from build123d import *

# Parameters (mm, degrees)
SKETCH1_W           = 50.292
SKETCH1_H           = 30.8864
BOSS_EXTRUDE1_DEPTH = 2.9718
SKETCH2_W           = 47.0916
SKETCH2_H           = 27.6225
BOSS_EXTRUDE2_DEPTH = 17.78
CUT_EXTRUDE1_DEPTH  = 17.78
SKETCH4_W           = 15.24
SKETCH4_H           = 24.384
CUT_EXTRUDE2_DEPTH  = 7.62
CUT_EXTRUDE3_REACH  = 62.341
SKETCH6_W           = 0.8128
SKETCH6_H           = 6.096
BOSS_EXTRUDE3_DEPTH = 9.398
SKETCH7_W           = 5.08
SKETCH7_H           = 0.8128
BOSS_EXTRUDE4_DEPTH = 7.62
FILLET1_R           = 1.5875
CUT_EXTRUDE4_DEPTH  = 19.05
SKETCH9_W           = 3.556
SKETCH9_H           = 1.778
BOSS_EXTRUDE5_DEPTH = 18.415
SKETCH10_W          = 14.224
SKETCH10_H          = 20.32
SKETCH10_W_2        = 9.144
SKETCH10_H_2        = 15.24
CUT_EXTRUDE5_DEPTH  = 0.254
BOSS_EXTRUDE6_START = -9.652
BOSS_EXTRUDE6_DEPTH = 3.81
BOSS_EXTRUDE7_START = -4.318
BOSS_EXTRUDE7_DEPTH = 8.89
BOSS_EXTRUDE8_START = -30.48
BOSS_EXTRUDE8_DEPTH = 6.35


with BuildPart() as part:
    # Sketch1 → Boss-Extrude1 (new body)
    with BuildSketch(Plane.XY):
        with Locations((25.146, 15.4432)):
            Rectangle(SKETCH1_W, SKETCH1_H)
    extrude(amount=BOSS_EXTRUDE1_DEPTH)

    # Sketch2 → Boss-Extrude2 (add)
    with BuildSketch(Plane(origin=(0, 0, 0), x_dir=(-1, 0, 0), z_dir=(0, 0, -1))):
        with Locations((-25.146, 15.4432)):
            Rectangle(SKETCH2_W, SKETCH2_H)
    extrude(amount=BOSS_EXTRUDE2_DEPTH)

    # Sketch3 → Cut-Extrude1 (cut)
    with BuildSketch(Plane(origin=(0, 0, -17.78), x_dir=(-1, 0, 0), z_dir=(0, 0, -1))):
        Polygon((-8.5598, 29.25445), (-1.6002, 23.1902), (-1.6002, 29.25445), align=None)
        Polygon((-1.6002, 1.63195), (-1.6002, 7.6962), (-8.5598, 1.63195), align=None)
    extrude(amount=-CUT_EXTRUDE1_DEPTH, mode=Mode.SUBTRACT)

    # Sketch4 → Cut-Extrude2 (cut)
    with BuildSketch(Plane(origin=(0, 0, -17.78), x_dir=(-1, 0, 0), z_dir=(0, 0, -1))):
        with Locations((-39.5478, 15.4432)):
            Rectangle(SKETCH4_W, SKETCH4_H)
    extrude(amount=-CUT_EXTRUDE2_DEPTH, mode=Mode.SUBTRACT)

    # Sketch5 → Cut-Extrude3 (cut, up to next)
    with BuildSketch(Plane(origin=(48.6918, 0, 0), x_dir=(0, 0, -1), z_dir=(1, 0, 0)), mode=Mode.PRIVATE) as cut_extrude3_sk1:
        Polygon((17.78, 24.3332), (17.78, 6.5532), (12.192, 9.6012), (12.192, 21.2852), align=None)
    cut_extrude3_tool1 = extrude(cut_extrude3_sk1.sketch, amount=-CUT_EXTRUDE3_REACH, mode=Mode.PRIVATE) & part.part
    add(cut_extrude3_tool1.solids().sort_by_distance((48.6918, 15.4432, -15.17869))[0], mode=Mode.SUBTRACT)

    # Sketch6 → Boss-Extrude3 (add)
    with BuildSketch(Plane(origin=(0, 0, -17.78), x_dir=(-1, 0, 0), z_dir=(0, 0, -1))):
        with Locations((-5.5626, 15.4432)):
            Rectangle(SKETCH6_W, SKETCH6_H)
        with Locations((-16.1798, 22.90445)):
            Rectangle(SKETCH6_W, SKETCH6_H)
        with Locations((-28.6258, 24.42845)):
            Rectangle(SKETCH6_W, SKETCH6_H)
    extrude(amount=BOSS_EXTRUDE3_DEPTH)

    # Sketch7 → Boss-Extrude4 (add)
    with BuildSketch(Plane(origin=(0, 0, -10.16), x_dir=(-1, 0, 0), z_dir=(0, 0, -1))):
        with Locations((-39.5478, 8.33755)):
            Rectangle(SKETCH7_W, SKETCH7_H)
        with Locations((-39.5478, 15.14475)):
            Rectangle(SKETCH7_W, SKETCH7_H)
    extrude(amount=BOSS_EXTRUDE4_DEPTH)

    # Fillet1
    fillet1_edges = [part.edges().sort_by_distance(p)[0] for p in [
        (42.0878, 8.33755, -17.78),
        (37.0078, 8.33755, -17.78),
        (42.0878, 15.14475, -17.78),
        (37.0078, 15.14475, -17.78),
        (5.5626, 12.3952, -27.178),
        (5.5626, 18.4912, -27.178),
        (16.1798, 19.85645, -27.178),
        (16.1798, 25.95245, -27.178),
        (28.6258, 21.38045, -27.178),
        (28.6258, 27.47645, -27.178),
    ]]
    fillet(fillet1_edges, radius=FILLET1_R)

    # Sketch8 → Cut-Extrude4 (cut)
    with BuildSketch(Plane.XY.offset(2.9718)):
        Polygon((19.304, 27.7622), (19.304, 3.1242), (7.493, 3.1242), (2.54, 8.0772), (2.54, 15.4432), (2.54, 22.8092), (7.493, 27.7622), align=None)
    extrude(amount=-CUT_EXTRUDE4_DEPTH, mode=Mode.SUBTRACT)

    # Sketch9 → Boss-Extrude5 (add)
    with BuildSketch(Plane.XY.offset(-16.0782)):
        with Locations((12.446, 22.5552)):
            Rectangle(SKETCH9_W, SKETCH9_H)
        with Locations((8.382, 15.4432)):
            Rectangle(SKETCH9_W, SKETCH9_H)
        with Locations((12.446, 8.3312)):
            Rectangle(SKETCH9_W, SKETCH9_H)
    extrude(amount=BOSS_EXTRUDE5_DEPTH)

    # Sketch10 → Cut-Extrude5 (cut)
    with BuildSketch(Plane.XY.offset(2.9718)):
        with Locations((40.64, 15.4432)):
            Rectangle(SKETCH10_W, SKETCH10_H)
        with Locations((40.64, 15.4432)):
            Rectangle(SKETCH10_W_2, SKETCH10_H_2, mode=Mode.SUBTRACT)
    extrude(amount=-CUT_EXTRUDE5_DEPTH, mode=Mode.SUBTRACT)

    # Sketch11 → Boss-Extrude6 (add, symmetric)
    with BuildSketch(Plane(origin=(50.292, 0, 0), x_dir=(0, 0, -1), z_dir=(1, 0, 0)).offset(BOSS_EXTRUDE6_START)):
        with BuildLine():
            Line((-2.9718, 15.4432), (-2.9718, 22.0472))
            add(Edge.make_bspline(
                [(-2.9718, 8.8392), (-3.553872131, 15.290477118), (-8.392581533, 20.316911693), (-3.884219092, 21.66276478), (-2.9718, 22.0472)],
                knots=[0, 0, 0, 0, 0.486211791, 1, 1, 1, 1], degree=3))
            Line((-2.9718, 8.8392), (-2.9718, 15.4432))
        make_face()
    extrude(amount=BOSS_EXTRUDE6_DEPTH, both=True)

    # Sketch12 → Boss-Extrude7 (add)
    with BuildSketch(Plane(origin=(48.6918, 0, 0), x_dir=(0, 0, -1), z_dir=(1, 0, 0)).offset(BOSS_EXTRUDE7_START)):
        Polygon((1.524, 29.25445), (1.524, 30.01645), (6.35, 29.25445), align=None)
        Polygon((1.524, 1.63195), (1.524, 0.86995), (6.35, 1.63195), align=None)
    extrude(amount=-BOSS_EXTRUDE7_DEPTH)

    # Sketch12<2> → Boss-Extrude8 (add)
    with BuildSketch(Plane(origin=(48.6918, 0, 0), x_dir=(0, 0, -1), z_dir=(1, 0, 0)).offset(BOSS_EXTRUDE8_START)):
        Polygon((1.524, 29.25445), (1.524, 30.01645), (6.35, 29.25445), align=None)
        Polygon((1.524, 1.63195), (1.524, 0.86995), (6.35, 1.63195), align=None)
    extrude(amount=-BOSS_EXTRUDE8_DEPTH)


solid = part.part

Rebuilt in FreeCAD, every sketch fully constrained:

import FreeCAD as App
import Part
import Sketcher

V = App.Vector
Q = App.Units.Quantity


def edges_at(feature, points):
    """Names of the edges that pass closest to the given points."""
    edges = feature.Shape.Edges
    near = lambda p: min(range(len(edges)), key=lambda i: edges[i].distToShape(Part.Vertex(*p))[0])
    return sorted({f"Edge{near(p) + 1}" for p in points})

doc = App.newDocument("Part")
body = doc.addObject("PartDesign::Body", "Body")

sketch1 = body.newObject("Sketcher::SketchObject", "Sketch")
sketch1.AttachmentSupport = (doc.getObject("XY_Plane"), [""])
sketch1.MapMode = "FlatFace"
sketch1.addGeometry(Part.LineSegment(V(0, 31, 0), V(0, 0, 0)), False)
sketch1.addGeometry(Part.LineSegment(V(0, 0, 0), V(50, 0, 0)), False)
sketch1.addGeometry(Part.LineSegment(V(50, 0, 0), V(50, 31, 0)), False)
sketch1.addGeometry(Part.LineSegment(V(50, 31, 0), V(0, 31, 0)), False)
sketch1.addConstraint(Sketcher.Constraint("Coincident", 0, 2, 1, 1))
sketch1.addConstraint(Sketcher.Constraint("Coincident", 1, 2, 2, 1))
sketch1.addConstraint(Sketcher.Constraint("Coincident", 2, 2, 3, 1))
sketch1.addConstraint(Sketcher.Constraint("Coincident", 3, 2, 0, 1))
sketch1.addConstraint(Sketcher.Constraint("Vertical", 0))
sketch1.addConstraint(Sketcher.Constraint("Horizontal", 1))
sketch1.addConstraint(Sketcher.Constraint("Vertical", 2))
sketch1.addConstraint(Sketcher.Constraint("Horizontal", 3))
sketch1.addConstraint(Sketcher.Constraint("Coincident", 0, 2, -1, 1))
sketch1.addConstraint(Sketcher.Constraint("DistanceX", 1, 1, 1, 2, Q("1.98 in")))
sketch1.addConstraint(Sketcher.Constraint("DistanceY", 0, 2, 0, 1, Q("1.216 in")))
pad1 = body.newObject("PartDesign::Pad", "Pad")
pad1.Profile = sketch1
pad1.Length = Q("0.117 in")

sketch2 = body.newObject("Sketcher::SketchObject", "Sketch001")
sketch2.AttachmentSupport = (doc.getObject("XY_Plane"), [""])
sketch2.MapMode = "FlatFace"
sketch2.addGeometry(Part.LineSegment(V(49, 29, 0), V(49, 2, 0)), False)
sketch2.addGeometry(Part.LineSegment(V(49, 2, 0), V(2, 2, 0)), False)
sketch2.addGeometry(Part.LineSegment(V(2, 2, 0), V(2, 29, 0)), False)
sketch2.addGeometry(Part.LineSegment(V(2, 29, 0), V(49, 29, 0)), False)
sketch2.addConstraint(Sketcher.Constraint("Coincident", 0, 2, 1, 1))
sketch2.addConstraint(Sketcher.Constraint("Coincident", 1, 2, 2, 1))
sketch2.addConstraint(Sketcher.Constraint("Coincident", 2, 2, 3, 1))
sketch2.addConstraint(Sketcher.Constraint("Coincident", 3, 2, 0, 1))
sketch2.addConstraint(Sketcher.Constraint("Vertical", 0))
sketch2.addConstraint(Sketcher.Constraint("Horizontal", 1))
sketch2.addConstraint(Sketcher.Constraint("Vertical", 2))
sketch2.addConstraint(Sketcher.Constraint("Horizontal", 3))
sketch2.addConstraint(Sketcher.Constraint("DistanceX", 1, 2, 1, 1, Q("1.854 in")))
sketch2.addConstraint(Sketcher.Constraint("DistanceY", 0, 2, 0, 1, Q("1.0875 in")))
sketch2.addConstraint(Sketcher.Constraint("DistanceX", -1, 1, 0, 2, Q("1.917 in")))
sketch2.addConstraint(Sketcher.Constraint("DistanceY", -1, 1, 0, 2, Q("1.63195 mm")))
pad2 = body.newObject("PartDesign::Pad", "Pad001")
pad2.Profile = sketch2
pad2.Length = Q("0.7 in")
pad2.Reversed = True

sketch3 = body.newObject("Sketcher::SketchObject", "Sketch002")
sketch3.AttachmentSupport = (doc.getObject("XY_Plane"), [""])
sketch3.MapMode = "FlatFace"
sketch3.AttachmentOffset = App.Placement(V(0, 0, -0.7 * 25.4), App.Rotation())
sketch3.addGeometry(Part.LineSegment(V(9, 29, 0), V(2, 23, 0)), False)
sketch3.addGeometry(Part.LineSegment(V(2, 23, 0), V(2, 29, 0)), False)
sketch3.addGeometry(Part.LineSegment(V(2, 29, 0), V(9, 29, 0)), False)
sketch3.addGeometry(Part.LineSegment(V(2, 2, 0), V(2, 8, 0)), False)
sketch3.addGeometry(Part.LineSegment(V(2, 8, 0), V(9, 2, 0)), False)
sketch3.addGeometry(Part.LineSegment(V(9, 2, 0), V(2, 2, 0)), False)
sketch3.addConstraint(Sketcher.Constraint("Coincident", 0, 2, 1, 1))
sketch3.addConstraint(Sketcher.Constraint("Coincident", 1, 2, 2, 1))
sketch3.addConstraint(Sketcher.Constraint("Coincident", 2, 2, 0, 1))
sketch3.addConstraint(Sketcher.Constraint("Coincident", 3, 2, 4, 1))
sketch3.addConstraint(Sketcher.Constraint("Coincident", 4, 2, 5, 1))
sketch3.addConstraint(Sketcher.Constraint("Coincident", 5, 2, 3, 1))
sketch3.addConstraint(Sketcher.Constraint("Vertical", 1))
sketch3.addConstraint(Sketcher.Constraint("Horizontal", 2))
sketch3.addConstraint(Sketcher.Constraint("Vertical", 3))
sketch3.addConstraint(Sketcher.Constraint("Horizontal", 5))
sketch3.addConstraint(Sketcher.Constraint("Vertical", 1, 2, 3, 2))
sketch3.addConstraint(Sketcher.Constraint("Vertical", 2, 2, 4, 2))
sketch3.addConstraint(Sketcher.Constraint("Equal", 1, 3))
sketch3.addConstraint(Sketcher.Constraint("DistanceX", 2, 1, 2, 2, Q("0.274 in")))
sketch3.addConstraint(Sketcher.Constraint("DistanceY", 3, 2, 0, 2, Q("0.61 in")))
sketch3.addConstraint(Sketcher.Constraint("DistanceX", -1, 1, 0, 2, Q("0.063 in")))
sketch3.addConstraint(Sketcher.Constraint("DistanceY", -1, 1, 0, 2, Q("0.913 in")))
sketch3.addConstraint(Sketcher.Constraint("DistanceY", 4, 2, 2, 2, Q("1.0875 in")))
pocket1 = body.newObject("PartDesign::Pocket", "Pocket")
pocket1.Profile = sketch3
pocket1.Length = Q("0.7 in")
pocket1.Reversed = True

sketch4 = body.newObject("Sketcher::SketchObject", "Sketch003")
sketch4.AttachmentSupport = (doc.getObject("XY_Plane"), [""])
sketch4.MapMode = "FlatFace"
sketch4.AttachmentOffset = App.Placement(V(0, 0, -0.7 * 25.4), App.Rotation())
sketch4.addGeometry(Part.LineSegment(V(47, 28, 0), V(47, 3, 0)), False)
sketch4.addGeometry(Part.LineSegment(V(47, 3, 0), V(32, 3, 0)), False)
sketch4.addGeometry(Part.LineSegment(V(32, 3, 0), V(32, 28, 0)), False)
sketch4.addGeometry(Part.LineSegment(V(32, 28, 0), V(47, 28, 0)), False)
sketch4.addConstraint(Sketcher.Constraint("Coincident", 0, 2, 1, 1))
sketch4.addConstraint(Sketcher.Constraint("Coincident", 1, 2, 2, 1))
sketch4.addConstraint(Sketcher.Constraint("Coincident", 2, 2, 3, 1))
sketch4.addConstraint(Sketcher.Constraint("Coincident", 3, 2, 0, 1))
sketch4.addConstraint(Sketcher.Constraint("Vertical", 0))
sketch4.addConstraint(Sketcher.Constraint("Horizontal", 1))
sketch4.addConstraint(Sketcher.Constraint("Vertical", 2))
sketch4.addConstraint(Sketcher.Constraint("Horizontal", 3))
sketch4.addConstraint(Sketcher.Constraint("DistanceX", 1, 2, 1, 1, Q("0.6 in")))
sketch4.addConstraint(Sketcher.Constraint("DistanceY", 0, 2, 0, 1, Q("0.96 in")))
sketch4.addConstraint(Sketcher.Constraint("DistanceX", -1, 1, 0, 2, Q("1.857 in")))
sketch4.addConstraint(Sketcher.Constraint("DistanceY", -1, 1, 0, 2, Q("0.128 in")))
pocket2 = body.newObject("PartDesign::Pocket", "Pocket001")
pocket2.Profile = sketch4
pocket2.Length = Q("0.3 in")
pocket2.Reversed = True

sketch5 = body.newObject("Sketcher::SketchObject", "Sketch004")
sketch5.AttachmentSupport = (doc.getObject("YZ_Plane"), [""])
sketch5.MapMode = "FlatFace"
sketch5.AttachmentOffset = App.Placement(V(0, 0, 1.917 * 25.4), App.Rotation())
sketch5.addGeometry(Part.LineSegment(V(7, -18, 0), V(24, -18, 0)), False)
sketch5.addGeometry(Part.LineSegment(V(24, -18, 0), V(21, -12, 0)), False)
sketch5.addGeometry(Part.LineSegment(V(21, -12, 0), V(10, -12, 0)), False)
sketch5.addGeometry(Part.LineSegment(V(10, -12, 0), V(7, -18, 0)), False)
sketch5.addConstraint(Sketcher.Constraint("Coincident", 0, 2, 1, 1))
sketch5.addConstraint(Sketcher.Constraint("Coincident", 1, 2, 2, 1))
sketch5.addConstraint(Sketcher.Constraint("Coincident", 2, 2, 3, 1))
sketch5.addConstraint(Sketcher.Constraint("Coincident", 3, 2, 0, 1))
sketch5.addConstraint(Sketcher.Constraint("Horizontal", 0))
sketch5.addConstraint(Sketcher.Constraint("Horizontal", 2))
sketch5.addConstraint(Sketcher.Constraint("Equal", 1, 3))
sketch5.addConstraint(Sketcher.Constraint("DistanceX", 0, 1, 0, 2, Q("0.7 in")))
sketch5.addConstraint(Sketcher.Constraint("DistanceX", 2, 2, 2, 1, Q("0.46 in")))
sketch5.addConstraint(Sketcher.Constraint("DistanceY", 0, 2, -1, 1, Q("0.7 in")))
sketch5.addConstraint(Sketcher.Constraint("DistanceY", 1, 2, -1, 1, Q("0.48 in")))
sketch5.addConstraint(Sketcher.Constraint("DistanceX", -1, 1, 0, 2, Q("0.958 in")))
pocket3 = body.newObject("PartDesign::Pocket", "Pocket002")
pocket3.Profile = sketch5
pocket3.Type = "UpToFirst"

sketch6 = body.newObject("Sketcher::SketchObject", "Sketch005")
sketch6.AttachmentSupport = (doc.getObject("XY_Plane"), [""])
sketch6.MapMode = "FlatFace"
sketch6.AttachmentOffset = App.Placement(V(0, 0, -0.7 * 25.4), App.Rotation())
sketch6.addGeometry(Part.LineSegment(V(6, 18.5, 0), V(6, 12.4, 0)), False)
sketch6.addGeometry(Part.LineSegment(V(6, 12.4, 0), V(5.2, 12.4, 0)), False)
sketch6.addGeometry(Part.LineSegment(V(5.2, 12.4, 0), V(5.2, 18.5, 0)), False)
sketch6.addGeometry(Part.LineSegment(V(5.2, 18.5, 0), V(6, 18.5, 0)), False)
sketch6.addGeometry(Part.LineSegment(V(16.6, 26, 0), V(16.6, 19.9, 0)), False)
sketch6.addGeometry(Part.LineSegment(V(16.6, 19.9, 0), V(15.8, 19.9, 0)), False)
sketch6.addGeometry(Part.LineSegment(V(15.8, 19.9, 0), V(15.8, 26, 0)), False)
sketch6.addGeometry(Part.LineSegment(V(15.8, 26, 0), V(16.6, 26, 0)), False)
sketch6.addGeometry(Part.LineSegment(V(29, 27.5, 0), V(29, 21.4, 0)), False)
sketch6.addGeometry(Part.LineSegment(V(29, 21.4, 0), V(28.2, 21.4, 0)), False)
sketch6.addGeometry(Part.LineSegment(V(28.2, 21.4, 0), V(28.2, 27.5, 0)), False)
sketch6.addGeometry(Part.LineSegment(V(28.2, 27.5, 0), V(29, 27.5, 0)), False)
sketch6.addConstraint(Sketcher.Constraint("Coincident", 0, 2, 1, 1))
sketch6.addConstraint(Sketcher.Constraint("Coincident", 1, 2, 2, 1))
sketch6.addConstraint(Sketcher.Constraint("Coincident", 2, 2, 3, 1))
sketch6.addConstraint(Sketcher.Constraint("Coincident", 3, 2, 0, 1))
sketch6.addConstraint(Sketcher.Constraint("Coincident", 4, 2, 5, 1))
sketch6.addConstraint(Sketcher.Constraint("Coincident", 5, 2, 6, 1))
sketch6.addConstraint(Sketcher.Constraint("Coincident", 6, 2, 7, 1))
sketch6.addConstraint(Sketcher.Constraint("Coincident", 7, 2, 4, 1))
sketch6.addConstraint(Sketcher.Constraint("Coincident", 8, 2, 9, 1))
sketch6.addConstraint(Sketcher.Constraint("Coincident", 9, 2, 10, 1))
sketch6.addConstraint(Sketcher.Constraint("Coincident", 10, 2, 11, 1))
sketch6.addConstraint(Sketcher.Constraint("Coincident", 11, 2, 8, 1))
sketch6.addConstraint(Sketcher.Constraint("Vertical", 0))
sketch6.addConstraint(Sketcher.Constraint("Horizontal", 1))
sketch6.addConstraint(Sketcher.Constraint("Vertical", 2))
sketch6.addConstraint(Sketcher.Constraint("Horizontal", 3))
sketch6.addConstraint(Sketcher.Constraint("Vertical", 4))
sketch6.addConstraint(Sketcher.Constraint("Horizontal", 5))
sketch6.addConstraint(Sketcher.Constraint("Vertical", 6))
sketch6.addConstraint(Sketcher.Constraint("Horizontal", 7))
sketch6.addConstraint(Sketcher.Constraint("Vertical", 8))
sketch6.addConstraint(Sketcher.Constraint("Horizontal", 9))
sketch6.addConstraint(Sketcher.Constraint("Vertical", 10))
sketch6.addConstraint(Sketcher.Constraint("Horizontal", 11))
sketch6.addConstraint(Sketcher.Constraint("Equal", 3, 5))
sketch6.addConstraint(Sketcher.Constraint("Equal", 7, 9))
sketch6.addConstraint(Sketcher.Constraint("Equal", 2, 4))
sketch6.addConstraint(Sketcher.Constraint("Equal", 6, 8))
sketch6.addConstraint(Sketcher.Constraint("DistanceY", 0, 2, 0, 1, Q("0.24 in")))
sketch6.addConstraint(Sketcher.Constraint("DistanceY", 4, 2, 10, 2, Q("0.3 in")))
sketch6.addConstraint(Sketcher.Constraint("DistanceX", 1, 2, 1, 1, Q("0.032 in")))
sketch6.addConstraint(Sketcher.Constraint("DistanceX", 2, 2, 4, 2, Q("0.45 in")))
sketch6.addConstraint(Sketcher.Constraint("DistanceX", 4, 2, 8, 2, Q("0.49 in")))
sketch6.addConstraint(Sketcher.Constraint("DistanceX", -1, 1, 0, 2, Q("0.235 in")))
sketch6.addConstraint(Sketcher.Constraint("DistanceY", -1, 1, 0, 2, Q("0.488 in")))
sketch6.addConstraint(Sketcher.Constraint("DistanceY", -1, 1, 4, 2, Q("19.85645 mm")))
pad3 = body.newObject("PartDesign::Pad", "Pad002")
pad3.Profile = sketch6
pad3.Length = Q("0.37 in")
pad3.Reversed = True

sketch7 = body.newObject("Sketcher::SketchObject", "Sketch006")
sketch7.AttachmentSupport = (doc.getObject("XY_Plane"), [""])
sketch7.MapMode = "FlatFace"
sketch7.AttachmentOffset = App.Placement(V(0, 0, -0.4 * 25.4), App.Rotation())
sketch7.addGeometry(Part.LineSegment(V(42.1, 8.7, 0), V(42.1, 7.9, 0)), False)
sketch7.addGeometry(Part.LineSegment(V(42.1, 7.9, 0), V(37, 7.9, 0)), False)
sketch7.addGeometry(Part.LineSegment(V(37, 7.9, 0), V(37, 8.7, 0)), False)
sketch7.addGeometry(Part.LineSegment(V(37, 8.7, 0), V(42.1, 8.7, 0)), False)
sketch7.addGeometry(Part.LineSegment(V(42.1, 15.6, 0), V(42.1, 14.7, 0)), False)
sketch7.addGeometry(Part.LineSegment(V(42.1, 14.7, 0), V(37, 14.7, 0)), False)
sketch7.addGeometry(Part.LineSegment(V(37, 14.7, 0), V(37, 15.6, 0)), False)
sketch7.addGeometry(Part.LineSegment(V(37, 15.6, 0), V(42.1, 15.6, 0)), False)
sketch7.addConstraint(Sketcher.Constraint("Coincident", 0, 2, 1, 1))
sketch7.addConstraint(Sketcher.Constraint("Coincident", 1, 2, 2, 1))
sketch7.addConstraint(Sketcher.Constraint("Coincident", 2, 2, 3, 1))
sketch7.addConstraint(Sketcher.Constraint("Coincident", 3, 2, 0, 1))
sketch7.addConstraint(Sketcher.Constraint("Coincident", 4, 2, 5, 1))
sketch7.addConstraint(Sketcher.Constraint("Coincident", 5, 2, 6, 1))
sketch7.addConstraint(Sketcher.Constraint("Coincident", 6, 2, 7, 1))
sketch7.addConstraint(Sketcher.Constraint("Coincident", 7, 2, 4, 1))
sketch7.addConstraint(Sketcher.Constraint("Vertical", 0))
sketch7.addConstraint(Sketcher.Constraint("Horizontal", 1))
sketch7.addConstraint(Sketcher.Constraint("Vertical", 2))
sketch7.addConstraint(Sketcher.Constraint("Horizontal", 3))
sketch7.addConstraint(Sketcher.Constraint("Vertical", 4))
sketch7.addConstraint(Sketcher.Constraint("Horizontal", 5))
sketch7.addConstraint(Sketcher.Constraint("Vertical", 6))
sketch7.addConstraint(Sketcher.Constraint("Horizontal", 7))
sketch7.addConstraint(Sketcher.Constraint("Vertical", 3, 2, 4, 2))
sketch7.addConstraint(Sketcher.Constraint("Vertical", 2, 2, 5, 2))
sketch7.addConstraint(Sketcher.Constraint("Equal", 2, 4))
sketch7.addConstraint(Sketcher.Constraint("DistanceX", 1, 2, 1, 1, Q("0.2 in")))
sketch7.addConstraint(Sketcher.Constraint("DistanceY", 1, 2, 6, 2, Q("0.3 in")))
sketch7.addConstraint(Sketcher.Constraint("DistanceY", 0, 2, 0, 1, Q("0.032 in")))
sketch7.addConstraint(Sketcher.Constraint("DistanceX", -1, 1, 0, 2, Q("1.657 in")))
sketch7.addConstraint(Sketcher.Constraint("DistanceY", -1, 1, 0, 2, Q("7.93115 mm")))
pad4 = body.newObject("PartDesign::Pad", "Pad003")
pad4.Profile = sketch7
pad4.Length = Q("0.3 in")
pad4.Reversed = True
doc.recompute()

fillet = body.newObject("PartDesign::Fillet", "Fillet")
fillet.Base = (pad4, edges_at(pad4, [
    (42.088, 8.338, -17.78),
    (37.008, 8.338, -17.78),
    (42.088, 15.145, -17.78),
    (37.008, 15.145, -17.78),
    (5.563, 12.395, -27.178),
    (5.563, 18.491, -27.178),
    (16.18, 19.856, -27.178),
    (16.18, 25.952, -27.178),
    (28.626, 21.38, -27.178),
    (28.626, 27.476, -27.178),
]))
fillet.Radius = Q("0.0625 in")

sketch8 = body.newObject("Sketcher::SketchObject", "Sketch007")
sketch8.AttachmentSupport = (doc.getObject("XY_Plane"), [""])
sketch8.MapMode = "FlatFace"
sketch8.AttachmentOffset = App.Placement(V(0, 0, 0.117 * 25.4), App.Rotation())
sketch8.addGeometry(Part.LineSegment(V(19, 3, 0), V(19, 28, 0)), False)
sketch8.addGeometry(Part.LineSegment(V(19, 28, 0), V(7, 28, 0)), False)
sketch8.addGeometry(Part.LineSegment(V(7, 28, 0), V(3, 23, 0)), False)
sketch8.addGeometry(Part.LineSegment(V(3, 23, 0), V(3, 8, 0)), False)
sketch8.addGeometry(Part.LineSegment(V(3, 8, 0), V(7, 3, 0)), False)
sketch8.addGeometry(Part.LineSegment(V(7, 3, 0), V(19, 3, 0)), False)
sketch8.addConstraint(Sketcher.Constraint("Coincident", 0, 2, 1, 1))
sketch8.addConstraint(Sketcher.Constraint("Coincident", 1, 2, 2, 1))
sketch8.addConstraint(Sketcher.Constraint("Coincident", 2, 2, 3, 1))
sketch8.addConstraint(Sketcher.Constraint("Coincident", 3, 2, 4, 1))
sketch8.addConstraint(Sketcher.Constraint("Coincident", 4, 2, 5, 1))
sketch8.addConstraint(Sketcher.Constraint("Coincident", 5, 2, 0, 1))
sketch8.addConstraint(Sketcher.Constraint("Vertical", 0))
sketch8.addConstraint(Sketcher.Constraint("Horizontal", 1))
sketch8.addConstraint(Sketcher.Constraint("Vertical", 3))
sketch8.addConstraint(Sketcher.Constraint("Horizontal", 5))
sketch8.addConstraint(Sketcher.Constraint("Perpendicular", 2, 4))
sketch8.addConstraint(Sketcher.Constraint("Vertical", 1, 2, 4, 2))
sketch8.addConstraint(Sketcher.Constraint("Equal", 2, 4))
sketch8.addConstraint(Sketcher.Constraint("DistanceY", 0, 1, 0, 2, Q("0.97 in")))
sketch8.addConstraint(Sketcher.Constraint("DistanceY", 3, 2, 3, 1, Q("0.58 in")))
sketch8.addConstraint(Sketcher.Constraint("DistanceX", -1, 1, 2, 2, Q("0.1 in")))
sketch8.addConstraint(Sketcher.Constraint("DistanceX", 1, 2, 1, 1, Q("0.465 in")))
sketch8.addConstraint(Sketcher.Constraint("DistanceY", -1, 1, 0, 2, Q("1.093 in")))
pocket4 = body.newObject("PartDesign::Pocket", "Pocket003")
pocket4.Profile = sketch8
pocket4.Length = Q("0.75 in")

sketch9 = body.newObject("Sketcher::SketchObject", "Sketch008")
sketch9.AttachmentSupport = (doc.getObject("XY_Plane"), [""])
sketch9.MapMode = "FlatFace"
sketch9.AttachmentOffset = App.Placement(V(0, 0, -0.633 * 25.4), App.Rotation())
sketch9.addGeometry(Part.LineSegment(V(10.7, 23.4, 0), V(10.7, 21.7, 0)), False)
sketch9.addGeometry(Part.LineSegment(V(10.7, 21.7, 0), V(14.2, 21.7, 0)), False)
sketch9.addGeometry(Part.LineSegment(V(14.2, 21.7, 0), V(14.2, 23.4, 0)), False)
sketch9.addGeometry(Part.LineSegment(V(14.2, 23.4, 0), V(10.7, 23.4, 0)), False)
sketch9.addGeometry(Part.LineSegment(V(6.6, 16.3, 0), V(6.6, 14.6, 0)), False)
sketch9.addGeometry(Part.LineSegment(V(6.6, 14.6, 0), V(10.2, 14.6, 0)), False)
sketch9.addGeometry(Part.LineSegment(V(10.2, 14.6, 0), V(10.2, 16.3, 0)), False)
sketch9.addGeometry(Part.LineSegment(V(10.2, 16.3, 0), V(6.6, 16.3, 0)), False)
sketch9.addGeometry(Part.LineSegment(V(10.7, 9.2, 0), V(10.7, 7.4, 0)), False)
sketch9.addGeometry(Part.LineSegment(V(10.7, 7.4, 0), V(14.2, 7.4, 0)), False)
sketch9.addGeometry(Part.LineSegment(V(14.2, 7.4, 0), V(14.2, 9.2, 0)), False)
sketch9.addGeometry(Part.LineSegment(V(14.2, 9.2, 0), V(10.7, 9.2, 0)), False)
sketch9.addConstraint(Sketcher.Constraint("Coincident", 0, 2, 1, 1))
sketch9.addConstraint(Sketcher.Constraint("Coincident", 1, 2, 2, 1))
sketch9.addConstraint(Sketcher.Constraint("Coincident", 2, 2, 3, 1))
sketch9.addConstraint(Sketcher.Constraint("Coincident", 3, 2, 0, 1))
sketch9.addConstraint(Sketcher.Constraint("Coincident", 4, 2, 5, 1))
sketch9.addConstraint(Sketcher.Constraint("Coincident", 5, 2, 6, 1))
sketch9.addConstraint(Sketcher.Constraint("Coincident", 6, 2, 7, 1))
sketch9.addConstraint(Sketcher.Constraint("Coincident", 7, 2, 4, 1))
sketch9.addConstraint(Sketcher.Constraint("Coincident", 8, 2, 9, 1))
sketch9.addConstraint(Sketcher.Constraint("Coincident", 9, 2, 10, 1))
sketch9.addConstraint(Sketcher.Constraint("Coincident", 10, 2, 11, 1))
sketch9.addConstraint(Sketcher.Constraint("Coincident", 11, 2, 8, 1))
sketch9.addConstraint(Sketcher.Constraint("Vertical", 0))
sketch9.addConstraint(Sketcher.Constraint("Horizontal", 1))
sketch9.addConstraint(Sketcher.Constraint("Vertical", 2))
sketch9.addConstraint(Sketcher.Constraint("Horizontal", 3))
sketch9.addConstraint(Sketcher.Constraint("Vertical", 4))
sketch9.addConstraint(Sketcher.Constraint("Horizontal", 5))
sketch9.addConstraint(Sketcher.Constraint("Vertical", 6))
sketch9.addConstraint(Sketcher.Constraint("Horizontal", 7))
sketch9.addConstraint(Sketcher.Constraint("Vertical", 8))
sketch9.addConstraint(Sketcher.Constraint("Horizontal", 9))
sketch9.addConstraint(Sketcher.Constraint("Vertical", 10))
sketch9.addConstraint(Sketcher.Constraint("Horizontal", 11))
sketch9.addConstraint(Sketcher.Constraint("Vertical", 3, 2, 8, 2))
sketch9.addConstraint(Sketcher.Constraint("Vertical", 2, 2, 9, 2))
sketch9.addConstraint(Sketcher.Constraint("Equal", 3, 5))
sketch9.addConstraint(Sketcher.Constraint("Equal", 2, 4))
sketch9.addConstraint(Sketcher.Constraint("Equal", 6, 8))
sketch9.addConstraint(Sketcher.Constraint("DistanceX", 1, 1, 1, 2, Q("0.14 in")))
sketch9.addConstraint(Sketcher.Constraint("DistanceY", 0, 2, 0, 1, Q("0.07 in")))
sketch9.addConstraint(Sketcher.Constraint("DistanceX", -1, 1, 5, 2, Q("0.4 in")))
sketch9.addConstraint(Sketcher.Constraint("DistanceX", 4, 2, 1, 2, Q("0.3 in")))
sketch9.addConstraint(Sketcher.Constraint("DistanceY", 4, 2, 0, 2, Q("0.28 in")))
sketch9.addConstraint(Sketcher.Constraint("DistanceY", 8, 2, 5, 2, Q("0.28 in")))
sketch9.addConstraint(Sketcher.Constraint("DistanceY", -1, 1, 0, 2, Q("0.853 in")))
pad5 = body.newObject("PartDesign::Pad", "Pad004")
pad5.Profile = sketch9
pad5.Length = Q("0.725 in")

sketch10 = body.newObject("Sketcher::SketchObject", "Sketch009")
sketch10.AttachmentSupport = (doc.getObject("XY_Plane"), [""])
sketch10.MapMode = "FlatFace"
sketch10.AttachmentOffset = App.Placement(V(0, 0, 0.117 * 25.4), App.Rotation())
sketch10.addGeometry(Part.LineSegment(V(34, 26, 0), V(34, 5, 0)), False)
sketch10.addGeometry(Part.LineSegment(V(34, 5, 0), V(48, 5, 0)), False)
sketch10.addGeometry(Part.LineSegment(V(48, 5, 0), V(48, 26, 0)), False)
sketch10.addGeometry(Part.LineSegment(V(48, 26, 0), V(34, 26, 0)), False)
sketch10.addGeometry(Part.LineSegment(V(45, 8, 0), V(36, 8, 0)), False)
sketch10.addGeometry(Part.LineSegment(V(36, 8, 0), V(36, 23, 0)), False)
sketch10.addGeometry(Part.LineSegment(V(36, 23, 0), V(45, 23, 0)), False)
sketch10.addGeometry(Part.LineSegment(V(45, 23, 0), V(45, 8, 0)), False)
sketch10.addConstraint(Sketcher.Constraint("Coincident", 0, 2, 1, 1))
sketch10.addConstraint(Sketcher.Constraint("Coincident", 1, 2, 2, 1))
sketch10.addConstraint(Sketcher.Constraint("Coincident", 2, 2, 3, 1))
sketch10.addConstraint(Sketcher.Constraint("Coincident", 3, 2, 0, 1))
sketch10.addConstraint(Sketcher.Constraint("Coincident", 4, 2, 5, 1))
sketch10.addConstraint(Sketcher.Constraint("Coincident", 5, 2, 6, 1))
sketch10.addConstraint(Sketcher.Constraint("Coincident", 6, 2, 7, 1))
sketch10.addConstraint(Sketcher.Constraint("Coincident", 7, 2, 4, 1))
sketch10.addConstraint(Sketcher.Constraint("Vertical", 0))
sketch10.addConstraint(Sketcher.Constraint("Horizontal", 1))
sketch10.addConstraint(Sketcher.Constraint("Vertical", 2))
sketch10.addConstraint(Sketcher.Constraint("Horizontal", 3))
sketch10.addConstraint(Sketcher.Constraint("Horizontal", 4))
sketch10.addConstraint(Sketcher.Constraint("Vertical", 5))
sketch10.addConstraint(Sketcher.Constraint("Horizontal", 6))
sketch10.addConstraint(Sketcher.Constraint("Vertical", 7))
sketch10.addConstraint(Sketcher.Constraint("DistanceY", 0, 2, 0, 1, Q("0.8 in")))
sketch10.addConstraint(Sketcher.Constraint("DistanceY", 5, 1, 5, 2, Q("0.6 in")))
sketch10.addConstraint(Sketcher.Constraint("DistanceX", 1, 1, 1, 2, Q("0.56 in")))
sketch10.addConstraint(Sketcher.Constraint("DistanceX", 4, 2, 4, 1, Q("0.36 in")))
sketch10.addConstraint(Sketcher.Constraint("DistanceX", 0, 2, 4, 2, Q("0.1 in")))
sketch10.addConstraint(Sketcher.Constraint("DistanceY", 0, 2, 4, 2, Q("0.1 in")))
sketch10.addConstraint(Sketcher.Constraint("DistanceX", -1, 1, 0, 2, Q("1.32 in")))
sketch10.addConstraint(Sketcher.Constraint("DistanceY", -1, 1, 0, 2, Q("0.208 in")))
pocket5 = body.newObject("PartDesign::Pocket", "Pocket004")
pocket5.Profile = sketch10
pocket5.Length = Q("0.01 in")

sketch11 = body.newObject("Sketcher::SketchObject", "Sketch010")
sketch11.AttachmentSupport = (doc.getObject("YZ_Plane"), [""])
sketch11.MapMode = "FlatFace"
sketch11.AttachmentOffset = App.Placement(V(0, 0, 1.6 * 25.4), App.Rotation())
sketch11.addGeometry(Part.BSplineCurve([V(8.8392, 2.9718, 0), V(15.290477, 3.553872, 0), V(20.316912, 8.392582, 0), V(21.662765, 3.884219, 0), V(22.0472, 2.9718, 0)], [4, 1, 4], [0, 0.486211791, 1], False, 3, [1, 1, 1, 1, 1], False), False)
sketch11.addGeometry(Part.LineSegment(V(8.8392, 2.9718, 0), V(22.0472, 2.9718, 0)), False)
sketch11.addConstraint(Sketcher.Constraint("Block", 0))
sketch11.addConstraint(Sketcher.Constraint("Coincident", 0, 1, 1, 1))
sketch11.addConstraint(Sketcher.Constraint("Coincident", 1, 2, 0, 2))
pad6 = body.newObject("PartDesign::Pad", "Pad005")
pad6.Profile = sketch11
pad6.Length = Q("0.3 in")
pad6.Midplane = True

sketch12 = body.newObject("Sketcher::SketchObject", "Sketch011")
sketch12.AttachmentSupport = (doc.getObject("YZ_Plane"), [""])
sketch12.MapMode = "FlatFace"
sketch12.AttachmentOffset = App.Placement(V(0, 0, 1.747 * 25.4), App.Rotation())
sketch12.addGeometry(Part.LineSegment(V(30, -1.5, 0), V(29.3, -1.5, 0)), False)
sketch12.addGeometry(Part.LineSegment(V(29.3, -1.5, 0), V(29.3, -6.3, 0)), False)
sketch12.addGeometry(Part.LineSegment(V(29.3, -6.3, 0), V(30, -1.5, 0)), False)
sketch12.addGeometry(Part.LineSegment(V(1.6, -1.5, 0), V(0.9, -1.5, 0)), False)
sketch12.addGeometry(Part.LineSegment(V(0.9, -1.5, 0), V(1.6, -6.3, 0)), False)
sketch12.addGeometry(Part.LineSegment(V(1.6, -6.3, 0), V(1.6, -1.5, 0)), False)
sketch12.addConstraint(Sketcher.Constraint("Coincident", 0, 2, 1, 1))
sketch12.addConstraint(Sketcher.Constraint("Coincident", 1, 2, 2, 1))
sketch12.addConstraint(Sketcher.Constraint("Coincident", 2, 2, 0, 1))
sketch12.addConstraint(Sketcher.Constraint("Coincident", 3, 2, 4, 1))
sketch12.addConstraint(Sketcher.Constraint("Coincident", 4, 2, 5, 1))
sketch12.addConstraint(Sketcher.Constraint("Coincident", 5, 2, 3, 1))
sketch12.addConstraint(Sketcher.Constraint("Horizontal", 0))
sketch12.addConstraint(Sketcher.Constraint("Vertical", 1))
sketch12.addConstraint(Sketcher.Constraint("Horizontal", 3))
sketch12.addConstraint(Sketcher.Constraint("Vertical", 5))
sketch12.addConstraint(Sketcher.Constraint("Horizontal", 2, 2, 3, 2))
sketch12.addConstraint(Sketcher.Constraint("Horizontal", 1, 2, 4, 2))
sketch12.addConstraint(Sketcher.Constraint("Equal", 0, 3))
sketch12.addConstraint(Sketcher.Constraint("DistanceX", 0, 2, 0, 1, Q("0.03 in")))
sketch12.addConstraint(Sketcher.Constraint("DistanceY", 1, 2, 1, 1, Q("0.19 in")))
sketch12.addConstraint(Sketcher.Constraint("DistanceY", 0, 2, -1, 1, Q("0.06 in")))
sketch12.addConstraint(Sketcher.Constraint("DistanceX", 3, 2, 0, 2, Q("1.1175 in")))
sketch12.addConstraint(Sketcher.Constraint("DistanceX", -1, 1, 0, 2, Q("29.25445 mm")))
pad7 = body.newObject("PartDesign::Pad", "Pad006")
pad7.Profile = sketch12
pad7.Length = Q("0.35 in")
pad7.Reversed = True

sketch13 = body.newObject("Sketcher::SketchObject", "Sketch012")
sketch13.AttachmentSupport = (doc.getObject("YZ_Plane"), [""])
sketch13.MapMode = "FlatFace"
sketch13.AttachmentOffset = App.Placement(V(0, 0, 0.717 * 25.4), App.Rotation())
sketch13.addGeometry(Part.LineSegment(V(30, -1.5, 0), V(29.3, -1.5, 0)), False)
sketch13.addGeometry(Part.LineSegment(V(29.3, -1.5, 0), V(29.3, -6.3, 0)), False)
sketch13.addGeometry(Part.LineSegment(V(29.3, -6.3, 0), V(30, -1.5, 0)), False)
sketch13.addGeometry(Part.LineSegment(V(1.6, -1.5, 0), V(0.9, -1.5, 0)), False)
sketch13.addGeometry(Part.LineSegment(V(0.9, -1.5, 0), V(1.6, -6.3, 0)), False)
sketch13.addGeometry(Part.LineSegment(V(1.6, -6.3, 0), V(1.6, -1.5, 0)), False)
sketch13.addConstraint(Sketcher.Constraint("Coincident", 0, 2, 1, 1))
sketch13.addConstraint(Sketcher.Constraint("Coincident", 1, 2, 2, 1))
sketch13.addConstraint(Sketcher.Constraint("Coincident", 2, 2, 0, 1))
sketch13.addConstraint(Sketcher.Constraint("Coincident", 3, 2, 4, 1))
sketch13.addConstraint(Sketcher.Constraint("Coincident", 4, 2, 5, 1))
sketch13.addConstraint(Sketcher.Constraint("Coincident", 5, 2, 3, 1))
sketch13.addConstraint(Sketcher.Constraint("Horizontal", 0))
sketch13.addConstraint(Sketcher.Constraint("Vertical", 1))
sketch13.addConstraint(Sketcher.Constraint("Horizontal", 3))
sketch13.addConstraint(Sketcher.Constraint("Vertical", 5))
sketch13.addConstraint(Sketcher.Constraint("Horizontal", 2, 2, 3, 2))
sketch13.addConstraint(Sketcher.Constraint("Horizontal", 1, 2, 4, 2))
sketch13.addConstraint(Sketcher.Constraint("Equal", 0, 3))
sketch13.addConstraint(Sketcher.Constraint("DistanceX", 0, 2, 0, 1, Q("0.03 in")))
sketch13.addConstraint(Sketcher.Constraint("DistanceY", 1, 2, 1, 1, Q("0.19 in")))
sketch13.addConstraint(Sketcher.Constraint("DistanceY", 0, 2, -1, 1, Q("0.06 in")))
sketch13.addConstraint(Sketcher.Constraint("DistanceX", 3, 2, 0, 2, Q("1.1175 in")))
sketch13.addConstraint(Sketcher.Constraint("DistanceX", -1, 1, 0, 2, Q("29.25445 mm")))
pad8 = body.newObject("PartDesign::Pad", "Pad007")
pad8.Profile = sketch13
pad8.Length = Q("0.25 in")
pad8.Reversed = True

doc.recompute()
